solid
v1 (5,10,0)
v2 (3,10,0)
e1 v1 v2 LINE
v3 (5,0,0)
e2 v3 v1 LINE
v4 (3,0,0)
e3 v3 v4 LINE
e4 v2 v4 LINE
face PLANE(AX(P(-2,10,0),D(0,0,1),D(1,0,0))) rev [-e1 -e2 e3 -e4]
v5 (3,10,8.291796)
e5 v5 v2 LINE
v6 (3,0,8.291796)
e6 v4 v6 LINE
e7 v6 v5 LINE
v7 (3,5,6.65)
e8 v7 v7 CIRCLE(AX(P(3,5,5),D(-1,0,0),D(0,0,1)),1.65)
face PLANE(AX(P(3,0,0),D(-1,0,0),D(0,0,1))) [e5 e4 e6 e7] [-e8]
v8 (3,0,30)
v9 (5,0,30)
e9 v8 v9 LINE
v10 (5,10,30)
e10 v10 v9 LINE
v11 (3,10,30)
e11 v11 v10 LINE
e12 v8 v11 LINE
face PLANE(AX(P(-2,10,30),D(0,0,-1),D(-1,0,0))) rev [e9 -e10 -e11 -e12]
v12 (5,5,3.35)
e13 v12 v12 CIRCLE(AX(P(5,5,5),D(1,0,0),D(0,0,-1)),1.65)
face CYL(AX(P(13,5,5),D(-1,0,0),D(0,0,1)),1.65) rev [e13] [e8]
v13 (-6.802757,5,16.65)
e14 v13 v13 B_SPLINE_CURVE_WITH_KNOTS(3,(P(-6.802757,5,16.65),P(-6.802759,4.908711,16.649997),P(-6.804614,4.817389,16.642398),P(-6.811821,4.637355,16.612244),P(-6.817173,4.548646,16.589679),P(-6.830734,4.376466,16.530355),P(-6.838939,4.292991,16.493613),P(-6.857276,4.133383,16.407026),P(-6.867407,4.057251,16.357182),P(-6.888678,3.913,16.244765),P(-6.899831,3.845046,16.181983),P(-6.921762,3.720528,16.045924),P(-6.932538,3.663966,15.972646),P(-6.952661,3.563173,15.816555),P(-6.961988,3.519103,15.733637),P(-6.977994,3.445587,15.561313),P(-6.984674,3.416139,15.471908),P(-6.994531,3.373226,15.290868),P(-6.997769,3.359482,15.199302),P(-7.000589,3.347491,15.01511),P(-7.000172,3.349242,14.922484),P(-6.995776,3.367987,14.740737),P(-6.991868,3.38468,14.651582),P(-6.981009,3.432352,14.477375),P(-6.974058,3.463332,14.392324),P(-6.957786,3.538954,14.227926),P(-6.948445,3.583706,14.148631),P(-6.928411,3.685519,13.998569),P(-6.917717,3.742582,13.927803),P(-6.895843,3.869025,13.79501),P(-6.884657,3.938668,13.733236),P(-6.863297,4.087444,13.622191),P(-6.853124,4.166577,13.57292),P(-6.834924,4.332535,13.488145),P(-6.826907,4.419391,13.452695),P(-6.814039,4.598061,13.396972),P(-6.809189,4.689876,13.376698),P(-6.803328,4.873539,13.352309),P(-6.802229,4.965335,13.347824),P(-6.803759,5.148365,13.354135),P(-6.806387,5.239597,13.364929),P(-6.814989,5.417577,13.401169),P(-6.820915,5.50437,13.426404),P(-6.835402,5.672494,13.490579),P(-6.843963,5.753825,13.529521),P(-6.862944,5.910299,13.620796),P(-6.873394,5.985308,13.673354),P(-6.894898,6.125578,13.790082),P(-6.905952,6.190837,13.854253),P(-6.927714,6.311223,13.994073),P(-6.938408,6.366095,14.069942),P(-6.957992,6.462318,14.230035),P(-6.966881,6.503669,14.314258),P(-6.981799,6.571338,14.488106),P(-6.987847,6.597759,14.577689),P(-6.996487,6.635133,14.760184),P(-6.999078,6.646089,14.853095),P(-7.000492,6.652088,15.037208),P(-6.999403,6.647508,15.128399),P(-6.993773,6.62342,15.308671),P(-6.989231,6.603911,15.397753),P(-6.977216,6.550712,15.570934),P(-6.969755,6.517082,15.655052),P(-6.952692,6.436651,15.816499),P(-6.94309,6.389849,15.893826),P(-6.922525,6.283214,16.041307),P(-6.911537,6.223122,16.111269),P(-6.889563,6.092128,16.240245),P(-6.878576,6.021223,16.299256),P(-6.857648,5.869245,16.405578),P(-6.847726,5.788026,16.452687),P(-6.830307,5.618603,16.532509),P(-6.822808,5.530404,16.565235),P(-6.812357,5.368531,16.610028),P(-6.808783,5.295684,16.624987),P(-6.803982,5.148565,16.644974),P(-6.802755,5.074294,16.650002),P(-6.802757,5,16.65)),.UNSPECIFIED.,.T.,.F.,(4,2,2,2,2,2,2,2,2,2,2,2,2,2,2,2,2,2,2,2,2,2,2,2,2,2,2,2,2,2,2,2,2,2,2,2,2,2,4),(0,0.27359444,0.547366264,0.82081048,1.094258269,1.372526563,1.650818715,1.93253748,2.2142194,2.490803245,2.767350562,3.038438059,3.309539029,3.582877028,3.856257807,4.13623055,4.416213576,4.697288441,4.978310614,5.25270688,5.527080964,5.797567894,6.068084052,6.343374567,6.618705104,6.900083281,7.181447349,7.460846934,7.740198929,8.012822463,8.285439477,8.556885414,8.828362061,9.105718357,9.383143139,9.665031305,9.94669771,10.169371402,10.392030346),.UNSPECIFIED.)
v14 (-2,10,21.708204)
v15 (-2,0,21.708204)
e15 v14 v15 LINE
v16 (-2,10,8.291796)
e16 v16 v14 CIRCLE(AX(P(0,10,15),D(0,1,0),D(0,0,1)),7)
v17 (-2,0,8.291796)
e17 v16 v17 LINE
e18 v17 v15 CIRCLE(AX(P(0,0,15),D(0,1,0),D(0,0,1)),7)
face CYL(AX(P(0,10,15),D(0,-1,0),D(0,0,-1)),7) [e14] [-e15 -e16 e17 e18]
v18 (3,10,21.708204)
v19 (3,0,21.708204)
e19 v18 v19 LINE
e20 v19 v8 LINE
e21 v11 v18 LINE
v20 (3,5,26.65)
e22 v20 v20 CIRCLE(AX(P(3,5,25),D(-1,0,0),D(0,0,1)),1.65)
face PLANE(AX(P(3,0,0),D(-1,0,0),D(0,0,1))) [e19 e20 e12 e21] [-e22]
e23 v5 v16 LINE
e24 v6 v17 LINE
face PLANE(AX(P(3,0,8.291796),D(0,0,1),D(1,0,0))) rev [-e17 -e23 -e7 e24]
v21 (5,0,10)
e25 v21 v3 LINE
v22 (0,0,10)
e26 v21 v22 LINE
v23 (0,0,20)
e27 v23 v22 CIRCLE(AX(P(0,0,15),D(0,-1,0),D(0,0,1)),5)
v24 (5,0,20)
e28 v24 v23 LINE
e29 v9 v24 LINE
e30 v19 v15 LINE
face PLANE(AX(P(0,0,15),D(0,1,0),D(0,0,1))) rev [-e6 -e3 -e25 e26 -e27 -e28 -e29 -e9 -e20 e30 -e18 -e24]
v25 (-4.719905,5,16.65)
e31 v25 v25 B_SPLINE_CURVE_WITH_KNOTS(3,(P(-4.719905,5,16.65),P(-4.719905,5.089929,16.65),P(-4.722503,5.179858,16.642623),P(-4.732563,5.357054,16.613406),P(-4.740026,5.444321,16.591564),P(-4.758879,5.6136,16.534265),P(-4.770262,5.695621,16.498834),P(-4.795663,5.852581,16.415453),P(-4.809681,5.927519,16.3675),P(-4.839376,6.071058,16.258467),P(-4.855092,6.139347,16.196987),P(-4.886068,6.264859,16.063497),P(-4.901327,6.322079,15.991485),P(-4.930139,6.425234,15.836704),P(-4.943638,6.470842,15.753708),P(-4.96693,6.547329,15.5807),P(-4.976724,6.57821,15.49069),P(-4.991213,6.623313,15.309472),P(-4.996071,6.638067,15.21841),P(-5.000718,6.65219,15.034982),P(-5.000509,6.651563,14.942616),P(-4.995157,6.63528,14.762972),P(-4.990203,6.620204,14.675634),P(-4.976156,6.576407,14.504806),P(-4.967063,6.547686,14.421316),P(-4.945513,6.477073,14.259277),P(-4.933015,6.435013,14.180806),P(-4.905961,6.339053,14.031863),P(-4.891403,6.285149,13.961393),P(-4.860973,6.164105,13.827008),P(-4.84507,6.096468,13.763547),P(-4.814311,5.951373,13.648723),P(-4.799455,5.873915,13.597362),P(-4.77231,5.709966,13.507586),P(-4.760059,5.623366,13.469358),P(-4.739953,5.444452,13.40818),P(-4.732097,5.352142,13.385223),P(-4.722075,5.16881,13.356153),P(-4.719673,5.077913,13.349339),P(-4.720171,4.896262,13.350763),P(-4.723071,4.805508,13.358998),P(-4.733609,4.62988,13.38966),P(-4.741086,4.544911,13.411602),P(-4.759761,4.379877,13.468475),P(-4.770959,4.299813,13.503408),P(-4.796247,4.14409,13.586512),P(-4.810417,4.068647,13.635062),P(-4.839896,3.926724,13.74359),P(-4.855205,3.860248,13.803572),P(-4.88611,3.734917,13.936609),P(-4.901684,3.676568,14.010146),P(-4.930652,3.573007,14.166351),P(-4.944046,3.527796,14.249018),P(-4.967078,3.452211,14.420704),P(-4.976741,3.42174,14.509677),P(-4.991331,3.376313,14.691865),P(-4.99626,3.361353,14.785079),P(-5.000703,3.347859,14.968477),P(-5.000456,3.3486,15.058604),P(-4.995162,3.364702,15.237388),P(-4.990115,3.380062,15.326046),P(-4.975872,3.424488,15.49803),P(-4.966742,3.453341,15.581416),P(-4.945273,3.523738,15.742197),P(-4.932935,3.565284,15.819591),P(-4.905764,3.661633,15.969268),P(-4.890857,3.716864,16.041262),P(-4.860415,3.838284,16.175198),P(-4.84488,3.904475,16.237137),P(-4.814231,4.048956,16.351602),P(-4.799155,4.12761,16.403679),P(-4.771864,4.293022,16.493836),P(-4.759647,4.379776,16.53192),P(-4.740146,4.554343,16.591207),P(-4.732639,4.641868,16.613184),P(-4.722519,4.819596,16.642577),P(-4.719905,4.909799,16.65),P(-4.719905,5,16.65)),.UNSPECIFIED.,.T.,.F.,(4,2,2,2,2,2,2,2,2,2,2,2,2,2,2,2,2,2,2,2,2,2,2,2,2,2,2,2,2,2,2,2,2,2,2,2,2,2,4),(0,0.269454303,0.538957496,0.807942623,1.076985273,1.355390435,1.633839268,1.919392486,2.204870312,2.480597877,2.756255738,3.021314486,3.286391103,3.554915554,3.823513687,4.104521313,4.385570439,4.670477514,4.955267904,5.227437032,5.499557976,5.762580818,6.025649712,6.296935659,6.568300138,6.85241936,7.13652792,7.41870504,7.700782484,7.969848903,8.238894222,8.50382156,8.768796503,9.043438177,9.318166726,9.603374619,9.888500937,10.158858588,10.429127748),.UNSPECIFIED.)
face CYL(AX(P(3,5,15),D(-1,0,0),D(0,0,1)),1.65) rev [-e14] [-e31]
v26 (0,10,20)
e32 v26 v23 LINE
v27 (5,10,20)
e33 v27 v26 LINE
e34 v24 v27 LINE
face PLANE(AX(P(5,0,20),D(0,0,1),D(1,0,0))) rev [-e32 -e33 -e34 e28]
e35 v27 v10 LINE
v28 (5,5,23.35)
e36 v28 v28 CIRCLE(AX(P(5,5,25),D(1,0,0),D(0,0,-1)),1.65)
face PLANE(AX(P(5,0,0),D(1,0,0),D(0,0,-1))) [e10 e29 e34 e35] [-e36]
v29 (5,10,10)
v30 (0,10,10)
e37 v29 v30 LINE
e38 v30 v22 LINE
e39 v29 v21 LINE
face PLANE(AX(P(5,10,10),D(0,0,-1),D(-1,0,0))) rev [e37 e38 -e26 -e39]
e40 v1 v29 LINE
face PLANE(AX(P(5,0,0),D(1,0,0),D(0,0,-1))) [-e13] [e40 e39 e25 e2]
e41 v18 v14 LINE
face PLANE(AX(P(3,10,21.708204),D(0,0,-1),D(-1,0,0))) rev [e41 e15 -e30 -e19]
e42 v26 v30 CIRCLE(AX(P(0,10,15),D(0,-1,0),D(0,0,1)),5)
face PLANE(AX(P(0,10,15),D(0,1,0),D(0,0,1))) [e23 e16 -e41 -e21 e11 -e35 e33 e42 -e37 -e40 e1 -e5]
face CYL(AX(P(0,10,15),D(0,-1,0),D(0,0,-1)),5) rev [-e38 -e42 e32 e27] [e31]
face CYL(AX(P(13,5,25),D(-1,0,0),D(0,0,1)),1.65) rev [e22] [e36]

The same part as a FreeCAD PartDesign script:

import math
import FreeCAD as App
import Part
import Sketcher

V = App.Vector
Q = App.Units.Quantity


def add_polygon(sketch, points):
    """Adds a closed chain of lines whose ends are joined by coincident constraints."""
    first, n = sketch.GeometryCount, len(points)
    for a, b in zip(points, points[1:] + points[:1]):
        sketch.addGeometry(Part.LineSegment(App.Vector(*a, 0), App.Vector(*b, 0)), False)
    for i in range(n):
        sketch.addConstraint(Sketcher.Constraint("Coincident", first + i, 2, first + (i + 1) % n, 1))

doc = App.newDocument("Part")
body = doc.addObject("PartDesign::Body", "Body")

sketch1 = body.newObject("Sketcher::SketchObject", "Sketch")
sketch1.AttachmentSupport = (doc.getObject("XZ_Plane"), [""])
sketch1.MapMode = "FlatFace"
sketch1.addGeometry(Part.LineSegment(V(0, 10, 0), V(0, 0, 0)), False)
sketch1.addGeometry(Part.LineSegment(V(0, 0, 0), V(-2, 0, 0)), False)
sketch1.addGeometry(Part.LineSegment(V(-2, 0, 0), V(-2, 8.3, 0)), False)
sketch1.addGeometry(Part.ArcOfCircle(Part.Circle(V(0, 15, 0), V(0, 0, 1), 7), math.radians(107), math.radians(253)), False)
sketch1.addGeometry(Part.LineSegment(V(-2, 21.7, 0), V(-2, 30, 0)), False)
sketch1.addGeometry(Part.LineSegment(V(-2, 30, 0), V(0, 30, 0)), False)
sketch1.addGeometry(Part.LineSegment(V(0, 30, 0), V(0, 20, 0)), False)
sketch1.addGeometry(Part.ArcOfCircle(Part.Circle(V(0, 15, 0), V(0, 0, 1), 5), math.radians(90), math.radians(270)), False)
sketch1.addConstraint(Sketcher.Constraint("Coincident", 0, 2, 1, 1))
sketch1.addConstraint(Sketcher.Constraint("Coincident", 1, 2, 2, 1))
sketch1.addConstraint(Sketcher.Constraint("Coincident", 2, 2, 3, 2))
sketch1.addConstraint(Sketcher.Constraint("Coincident", 3, 1, 4, 1))
sketch1.addConstraint(Sketcher.Constraint("Coincident", 4, 2, 5, 1))
sketch1.addConstraint(Sketcher.Constraint("Coincident", 5, 2, 6, 1))
sketch1.addConstraint(Sketcher.Constraint("Coincident", 6, 2, 7, 1))
sketch1.addConstraint(Sketcher.Constraint("Coincident", 7, 2, 0, 1))
sketch1.addConstraint(Sketcher.Constraint("Vertical", 0))
sketch1.addConstraint(Sketcher.Constraint("Horizontal", 1))
sketch1.addConstraint(Sketcher.Constraint("Vertical", 2))
sketch1.addConstraint(Sketcher.Constraint("Vertical", 4))
sketch1.addConstraint(Sketcher.Constraint("Horizontal", 5))
sketch1.addConstraint(Sketcher.Constraint("Vertical", 6))
sketch1.addConstraint(Sketcher.Constraint("Coincident", 0, 2, -1, 1))
sketch1.addConstraint(Sketcher.Constraint("Coincident", 7, 3, 3, 3))
sketch1.addConstraint(Sketcher.Constraint("PointOnObject", 3, 3, -2))
sketch1.addConstraint(Sketcher.Constraint("PointOnObject", 5, 2, -2))
sketch1.addConstraint(Sketcher.Constraint("Vertical", 2, 2, 3, 1))
sketch1.addConstraint(Sketcher.Constraint("Equal", 2, 4))
sketch1.addConstraint(Sketcher.Constraint("Radius", 3, Q("7 mm")))
sketch1.addConstraint(Sketcher.Constraint("Radius", 7, Q("5 mm")))
sketch1.addConstraint(Sketcher.Constraint("DistanceX", 1, 2, 1, 1, Q("2 mm")))
sketch1.addConstraint(Sketcher.Constraint("DistanceY", 0, 2, 0, 1, Q("10 mm")))
pad1 = body.newObject("PartDesign::Pad", "Pad")
pad1.Profile = sketch1
pad1.Length = 10
pad1.Reversed = True

sketch2 = body.newObject("Sketcher::SketchObject", "Sketch001")
sketch2.AttachmentSupport = (doc.getObject("YZ_Plane"), [""])
sketch2.MapMode = "FlatFace"
sketch2.AttachmentOffset = App.Placement(V(0, 0, -7), App.Rotation())
sketch2.addGeometry(Part.Circle(V(5, 15, 0), V(0, 0, 1), 1.2), False)
sketch2.addConstraint(Sketcher.Constraint("Diameter", 0, Q("2.5 mm")))
sketch2.addConstraint(Sketcher.Constraint("DistanceX", -1, 1, 0, 3, Q("5 mm")))
sketch2.addConstraint(Sketcher.Constraint("DistanceY", -1, 1, 0, 3, Q("15 mm")))
doc.recompute()
hole = body.newObject("PartDesign::Hole", "Hole")
hole.Profile = sketch2
hole.ThreadType = "None"
hole.Diameter = 2.5
hole.DepthType = "ThroughAll"
hole.HoleCutType = "Countersink"
hole.HoleCutDiameter = 2.55
hole.HoleCutCountersinkAngle = 90
hole.Reversed = True

sketch3 = body.newObject("Sketcher::SketchObject", "Sketch002")
sketch3.AttachmentSupport = (doc.getObject("YZ_Plane"), [""])
sketch3.MapMode = "FlatFace"
add_polygon(sketch3, [(10, 10), (0, 10), (0, 0), (10, 0)])
add_polygon(sketch3, [(10, 30), (0, 30), (0, 20), (10, 20)])
sketch3.addConstraint(Sketcher.Constraint("Horizontal", 0))
sketch3.addConstraint(Sketcher.Constraint("Vertical", 1))
sketch3.addConstraint(Sketcher.Constraint("Horizontal", 2))
sketch3.addConstraint(Sketcher.Constraint("Vertical", 3))
sketch3.addConstraint(Sketcher.Constraint("Horizontal", 4))
sketch3.addConstraint(Sketcher.Constraint("Vertical", 5))
sketch3.addConstraint(Sketcher.Constraint("Horizontal", 6))
sketch3.addConstraint(Sketcher.Constraint("Vertical", 7))
sketch3.addConstraint(Sketcher.Constraint("Coincident", 1, 2, -1, 1))
sketch3.addConstraint(Sketcher.Constraint("PointOnObject", 4, 2, -2))
sketch3.addConstraint(Sketcher.Constraint("Vertical", 3, 2, 6, 2))
sketch3.addConstraint(Sketcher.Constraint("Equal", 6, 1))
sketch3.addConstraint(Sketcher.Constraint("Equal", 3, 5))
sketch3.addConstraint(Sketcher.Constraint("DistanceX", 0, 2, 0, 1, Q("10 mm")))
sketch3.addConstraint(Sketcher.Constraint("DistanceY", -1, 1, 4, 2, Q("30 mm")))
pad2 = body.newObject("PartDesign::Pad", "Pad001")
pad2.Profile = sketch3
pad2.Length = 5

sketch4 = body.newObject("Sketcher::SketchObject", "Sketch003")
sketch4.AttachmentSupport = (doc.getObject("YZ_Plane"), [""])
sketch4.MapMode = "FlatFace"
sketch4.AttachmentOffset = App.Placement(V(0, 0, 5), App.Rotation())
sketch4.addGeometry(Part.Circle(V(5, 5, 0), V(0, 0, 1), 1.2), False)
sketch4.addGeometry(Part.Circle(V(5, 25, 0), V(0, 0, 1), 1.2), False)
sketch4.addConstraint(Sketcher.Constraint("Equal", 0, 1))
sketch4.addConstraint(Sketcher.Constraint("Vertical", 0, 3, 1, 3))
sketch4.addConstraint(Sketcher.Constraint("Diameter", 0, Q("2.5 mm")))
sketch4.addConstraint(Sketcher.Constraint("DistanceX", -1, 1, 0, 3, Q("5 mm")))
sketch4.addConstraint(Sketcher.Constraint("DistanceY", -1, 1, 0, 3, Q("5 mm")))
sketch4.addConstraint(Sketcher.Constraint("DistanceY", -1, 1, 1, 3, Q("25 mm")))
doc.recompute()
hole2 = body.newObject("PartDesign::Hole", "Hole001")
hole2.Profile = sketch4
hole2.ThreadType = "None"
hole2.Diameter = 2.5
hole2.DepthType = "ThroughAll"
hole2.HoleCutType = "Countersink"
hole2.HoleCutDiameter = 2.55
hole2.HoleCutCountersinkAngle = 90

sketch5 = body.newObject("Sketcher::SketchObject", "Sketch004")
sketch5.AttachmentSupport = (doc.getObject("YZ_Plane"), [""])
sketch5.MapMode = "FlatFace"
sketch5.AttachmentOffset = App.Placement(V(0, 0, -2), App.Rotation())
add_polygon(sketch5, [(10, 0), (0, 0), (0, 8), (10, 8)])
add_polygon(sketch5, [(10, 22), (0, 22), (0, 30), (10, 30)])
sketch5.addConstraint(Sketcher.Constraint("Horizontal", 0))
sketch5.addConstraint(Sketcher.Constraint("Vertical", 1))
sketch5.addConstraint(Sketcher.Constraint("Horizontal", 2))
sketch5.addConstraint(Sketcher.Constraint("Vertical", 3))
sketch5.addConstraint(Sketcher.Constraint("Horizontal", 4))
sketch5.addConstraint(Sketcher.Constraint("Vertical", 5))
sketch5.addConstraint(Sketcher.Constraint("Horizontal", 6))
sketch5.addConstraint(Sketcher.Constraint("Vertical", 7))
sketch5.addConstraint(Sketcher.Constraint("Coincident", 0, 2, -1, 1))
sketch5.addConstraint(Sketcher.Constraint("PointOnObject", 4, 2, -2))
sketch5.addConstraint(Sketcher.Constraint("Vertical", 3, 2, 6, 2))
sketch5.addConstraint(Sketcher.Constraint("Equal", 3, 5))
sketch5.addConstraint(Sketcher.Constraint("DistanceX", 0, 2, 0, 1, Q("10 mm")))
sketch5.addConstraint(Sketcher.Constraint("DistanceY", -1, 1, 5, 2, Q("30 mm")))
sketch5.addConstraint(Sketcher.Constraint("DistanceY", 1, 1, 1, 2, Q("8.291796 mm")))
pocket1 = body.newObject("PartDesign::Pocket", "Pocket")
pocket1.Profile = sketch5
pocket1.Length = 5
pocket1.Reversed = True

sketch6 = body.newObject("Sketcher::SketchObject", "Sketch005")
sketch6.AttachmentSupport = (doc.getObject("YZ_Plane"), [""])
sketch6.MapMode = "FlatFace"
sketch6.AttachmentOffset = App.Placement(V(0, 0, 3), App.Rotation())
sketch6.addGeometry(Part.Circle(V(5, 25, 0), V(0, 0, 1), 1.6), False)
sketch6.addGeometry(Part.Circle(V(5, 5, 0), V(0, 0, 1), 1.6), False)
sketch6.addConstraint(Sketcher.Constraint("Equal", 0, 1))
sketch6.addConstraint(Sketcher.Constraint("Vertical", 0, 3, 1, 3))
sketch6.addConstraint(Sketcher.Constraint("Diameter", 0, Q("3.3 mm")))
sketch6.addConstraint(Sketcher.Constraint("DistanceX", -1, 1, 0, 3, Q("5 mm")))
sketch6.addConstraint(Sketcher.Constraint("DistanceY", -1, 1, 0, 3, Q("25 mm")))
sketch6.addConstraint(Sketcher.Constraint("DistanceY", -1, 1, 1, 3, Q("5 mm")))
pocket2 = body.newObject("PartDesign::Pocket", "Pocket001")
pocket2.Profile = sketch6
pocket2.Length = 10
pocket2.Reversed = True

sketch7 = body.newObject("Sketcher::SketchObject", "Sketch006")
sketch7.AttachmentSupport = (doc.getObject("YZ_Plane"), [""])
sketch7.MapMode = "FlatFace"
sketch7.AttachmentOffset = App.Placement(V(0, 0, -7), App.Rotation())
sketch7.addGeometry(Part.Circle(V(5, 15, 0), V(0, 0, 1), 1.6), False)
sketch7.addConstraint(Sketcher.Constraint("Diameter", 0, Q("3.3 mm")))
sketch7.addConstraint(Sketcher.Constraint("DistanceX", -1, 1, 0, 3, Q("5 mm")))
sketch7.addConstraint(Sketcher.Constraint("DistanceY", -1, 1, 0, 3, Q("15 mm")))
pocket3 = body.newObject("PartDesign::Pocket", "Pocket002")
pocket3.Profile = sketch7
pocket3.Length = 10
pocket3.Reversed = True

doc.recompute()
